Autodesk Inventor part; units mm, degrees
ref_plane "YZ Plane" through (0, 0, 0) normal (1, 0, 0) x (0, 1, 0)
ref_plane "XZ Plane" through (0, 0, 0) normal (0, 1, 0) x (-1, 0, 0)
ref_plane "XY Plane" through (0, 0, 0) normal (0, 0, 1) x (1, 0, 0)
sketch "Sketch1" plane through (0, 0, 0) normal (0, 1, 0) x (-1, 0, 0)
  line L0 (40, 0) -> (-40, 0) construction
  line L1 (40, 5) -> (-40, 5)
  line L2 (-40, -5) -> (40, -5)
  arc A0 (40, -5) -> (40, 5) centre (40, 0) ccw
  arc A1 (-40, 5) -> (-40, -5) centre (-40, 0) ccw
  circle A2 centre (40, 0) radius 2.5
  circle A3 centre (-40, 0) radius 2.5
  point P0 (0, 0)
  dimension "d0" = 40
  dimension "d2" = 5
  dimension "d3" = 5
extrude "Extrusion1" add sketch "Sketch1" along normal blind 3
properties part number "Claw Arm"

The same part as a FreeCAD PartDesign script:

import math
import FreeCAD as App
import Part
import Sketcher

V = App.Vector

doc = App.newDocument("Part")
body = doc.addObject("PartDesign::Body", "Body")

# Sketch on XZ plane
sketch1 = body.newObject("Sketcher::SketchObject", "Sketch")
sketch1.AttachmentSupport = (doc.getObject("XZ_Plane"), [""])
sketch1.MapMode = "FlatFace"
sketch1.addGeometry(Part.ArcOfCircle(Part.Circle(V(-40, 0, 0), V(0, 0, 1), 5), math.radians(90), math.radians(270)), False)
sketch1.addGeometry(Part.LineSegment(V(-40, 5, 0), V(40, 5, 0)), False)
sketch1.addGeometry(Part.ArcOfCircle(Part.Circle(V(40, 0, 0), V(0, 0, 1), 5), math.radians(-90), math.radians(90)), False)
sketch1.addGeometry(Part.LineSegment(V(40, -5, 0), V(-40, -5, 0)), False)
sketch1.addGeometry(Part.Circle(V(40, 0, 0), V(0, 0, 1), 2.5), False)
sketch1.addGeometry(Part.Circle(V(-40, 0, 0), V(0, 0, 1), 2.5), False)
sketch1.addConstraint(Sketcher.Constraint("Tangent", 0, 1, 1, 1))
sketch1.addConstraint(Sketcher.Constraint("Tangent", 1, 2, 2, 2))
sketch1.addConstraint(Sketcher.Constraint("Tangent", 2, 1, 3, 1))
sketch1.addConstraint(Sketcher.Constraint("Tangent", 3, 2, 0, 2))
sketch1.addConstraint(Sketcher.Constraint("Horizontal", 1))
sketch1.addConstraint(Sketcher.Constraint("Horizontal", 3))
sketch1.addConstraint(Sketcher.Constraint("Coincident", 4, 3, 2, 3))
sketch1.addConstraint(Sketcher.Constraint("Coincident", 5, 3, 0, 3))
sketch1.addConstraint(Sketcher.Constraint("Equal", 4, 5))
sketch1.addConstraint(Sketcher.Constraint("Symmetric", 0, 3, 2, 3, -1, 1))
sketch1.addConstraint(Sketcher.Constraint("Diameter", 4, 5.0))
sketch1.addConstraint(Sketcher.Constraint("Radius", 0, 5.0))
sketch1.addConstraint(Sketcher.Constraint("DistanceX", 0, 3, -1, 1, 40.0))
pad1 = body.newObject("PartDesign::Pad", "Pad")
pad1.Profile = sketch1
pad1.Length = 3
pad1.Reversed = True

doc.recompute()
